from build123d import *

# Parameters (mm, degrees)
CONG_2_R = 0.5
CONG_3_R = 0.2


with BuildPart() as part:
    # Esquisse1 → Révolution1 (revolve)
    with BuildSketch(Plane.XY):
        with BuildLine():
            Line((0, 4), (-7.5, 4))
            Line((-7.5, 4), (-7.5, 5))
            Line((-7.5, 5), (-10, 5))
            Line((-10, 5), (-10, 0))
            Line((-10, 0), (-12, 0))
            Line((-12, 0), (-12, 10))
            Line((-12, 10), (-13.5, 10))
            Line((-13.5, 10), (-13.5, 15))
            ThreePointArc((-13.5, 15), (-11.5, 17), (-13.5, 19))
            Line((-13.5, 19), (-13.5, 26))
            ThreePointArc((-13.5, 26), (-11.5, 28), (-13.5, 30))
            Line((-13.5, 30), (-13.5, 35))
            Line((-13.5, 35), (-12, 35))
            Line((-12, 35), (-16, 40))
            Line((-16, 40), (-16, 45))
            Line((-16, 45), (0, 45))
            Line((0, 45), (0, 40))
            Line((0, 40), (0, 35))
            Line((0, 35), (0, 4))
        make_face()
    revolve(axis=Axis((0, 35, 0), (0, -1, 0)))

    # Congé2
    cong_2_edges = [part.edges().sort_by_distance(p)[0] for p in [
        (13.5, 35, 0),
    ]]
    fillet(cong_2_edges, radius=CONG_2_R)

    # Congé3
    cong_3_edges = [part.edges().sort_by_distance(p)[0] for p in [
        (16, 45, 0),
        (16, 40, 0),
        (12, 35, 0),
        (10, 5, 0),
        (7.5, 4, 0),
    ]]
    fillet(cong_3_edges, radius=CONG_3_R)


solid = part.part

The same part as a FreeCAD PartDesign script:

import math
import FreeCAD as App
import Part
import Sketcher
Q = App.Units.Quantity


def edges_at(feature, points):
    """Names of the edges that pass closest to the given points."""
    edges = feature.Shape.Edges
    near = lambda p: min(range(len(edges)), key=lambda i: edges[i].distToShape(Part.Vertex(*p))[0])
    return sorted({f"Edge{near(p) + 1}" for p in points})

doc = App.newDocument("Part")
body = doc.addObject("PartDesign::Body", "Body")

sketch1 = body.newObject("Sketcher::SketchObject", "Sketch")
sketch1.AttachmentSupport = (doc.getObject("XY_Plane"), [""])
sketch1.MapMode = "FlatFace"
sketch1.addGeometry(Part.LineSegment(App.Vector(-7.5, 4, 0), App.Vector(0, 4, 0)), False)
sketch1.addGeometry(Part.LineSegment(App.Vector(0, 4, 0), App.Vector(0, 45, 0)), False)
sketch1.addGeometry(Part.LineSegment(App.Vector(0, 45, 0), App.Vector(-16, 45, 0)), False)
sketch1.addGeometry(Part.LineSegment(App.Vector(-16, 45, 0), App.Vector(-16, 40, 0)), False)
sketch1.addGeometry(Part.LineSegment(App.Vector(-16, 40, 0), App.Vector(-12, 35, 0)), False)
sketch1.addGeometry(Part.LineSegment(App.Vector(-12, 35, 0), App.Vector(-13.5, 35, 0)), False)
sketch1.addGeometry(Part.LineSegment(App.Vector(-13.5, 35, 0), App.Vector(-13.5, 30, 0)), False)
sketch1.addGeometry(Part.ArcOfCircle(Part.Circle(App.Vector(-13.5, 28, 0), App.Vector(0, 0, 1), 2), math.radians(-90), math.radians(90)), False)
sketch1.addGeometry(Part.LineSegment(App.Vector(-13.5, 26, 0), App.Vector(-13.5, 19, 0)), False)
sketch1.addGeometry(Part.ArcOfCircle(Part.Circle(App.Vector(-13.5, 17, 0), App.Vector(0, 0, 1), 2), math.radians(-90), math.radians(90)), False)
sketch1.addGeometry(Part.LineSegment(App.Vector(-13.5, 15, 0), App.Vector(-13.5, 10, 0)), False)
sketch1.addGeometry(Part.LineSegment(App.Vector(-13.5, 10, 0), App.Vector(-12, 10, 0)), False)
sketch1.addGeometry(Part.LineSegment(App.Vector(-12, 10, 0), App.Vector(-12, 0, 0)), False)
sketch1.addGeometry(Part.LineSegment(App.Vector(-12, 0, 0), App.Vector(-10, 0, 0)), False)
sketch1.addGeometry(Part.LineSegment(App.Vector(-10, 0, 0), App.Vector(-10, 5, 0)), False)
sketch1.addGeometry(Part.LineSegment(App.Vector(-10, 5, 0), App.Vector(-7.5, 5, 0)), False)
sketch1.addGeometry(Part.LineSegment(App.Vector(-7.5, 5, 0), App.Vector(-7.5, 4, 0)), False)
sketch1.addConstraint(Sketcher.Constraint("Coincident", 0, 2, 1, 1))
sketch1.addConstraint(Sketcher.Constraint("Coincident", 1, 2, 2, 1))
sketch1.addConstraint(Sketcher.Constraint("Coincident", 2, 2, 3, 1))
sketch1.addConstraint(Sketcher.Constraint("Coincident", 3, 2, 4, 1))
sketch1.addConstraint(Sketcher.Constraint("Coincident", 4, 2, 5, 1))
sketch1.addConstraint(Sketcher.Constraint("Coincident", 5, 2, 6, 1))
sketch1.addConstraint(Sketcher.Constraint("Coincident", 6, 2, 7, 2))
sketch1.addConstraint(Sketcher.Constraint("Coincident", 7, 1, 8, 1))
sketch1.addConstraint(Sketcher.Constraint("Coincident", 8, 2, 9, 2))
sketch1.addConstraint(Sketcher.Constraint("Coincident", 9, 1, 10, 1))
sketch1.addConstraint(Sketcher.Constraint("Coincident", 10, 2, 11, 1))
sketch1.addConstraint(Sketcher.Constraint("Coincident", 11, 2, 12, 1))
sketch1.addConstraint(Sketcher.Constraint("Coincident", 12, 2, 13, 1))
sketch1.addConstraint(Sketcher.Constraint("Coincident", 13, 2, 14, 1))
sketch1.addConstraint(Sketcher.Constraint("Coincident", 14, 2, 15, 1))
sketch1.addConstraint(Sketcher.Constraint("Coincident", 15, 2, 16, 1))
sketch1.addConstraint(Sketcher.Constraint("Coincident", 16, 2, 0, 1))
sketch1.addConstraint(Sketcher.Constraint("Horizontal", 0))
sketch1.addConstraint(Sketcher.Constraint("Vertical", 1))
sketch1.addConstraint(Sketcher.Constraint("Horizontal", 2))
sketch1.addConstraint(Sketcher.Constraint("Vertical", 3))
sketch1.addConstraint(Sketcher.Constraint("Horizontal", 5))
sketch1.addConstraint(Sketcher.Constraint("Vertical", 6))
sketch1.addConstraint(Sketcher.Constraint("Vertical", 8))
sketch1.addConstraint(Sketcher.Constraint("Vertical", 10))
sketch1.addConstraint(Sketcher.Constraint("Horizontal", 11))
sketch1.addConstraint(Sketcher.Constraint("Vertical", 12))
sketch1.addConstraint(Sketcher.Constraint("Horizontal", 13))
sketch1.addConstraint(Sketcher.Constraint("Vertical", 14))
sketch1.addConstraint(Sketcher.Constraint("Horizontal", 15))
sketch1.addConstraint(Sketcher.Constraint("Vertical", 16))
sketch1.addConstraint(Sketcher.Constraint("Equal", 7, 9))
sketch1.addConstraint(Sketcher.Constraint("PointOnObject", 0, 2, -2))
sketch1.addConstraint(Sketcher.Constraint("PointOnObject", 12, 2, -1))
sketch1.addConstraint(Sketcher.Constraint("Vertical", 7, 3, 9, 3))
sketch1.addConstraint(Sketcher.Constraint("Vertical", 9, 3, 5, 2))
sketch1.addConstraint(Sketcher.Constraint("Vertical", 6, 2, 7, 1))
sketch1.addConstraint(Sketcher.Constraint("Vertical", 8, 2, 9, 1))
sketch1.addConstraint(Sketcher.Constraint("Vertical", 4, 2, 11, 2))
sketch1.addConstraint(Sketcher.Constraint("Equal", 3, 6))
sketch1.addConstraint(Sketcher.Constraint("Equal", 6, 10))
sketch1.addConstraint(Sketcher.Constraint("Equal", 10, 14))
sketch1.addConstraint(Sketcher.Constraint("Radius", 7, Q("2 mm")))
sketch1.addConstraint(Sketcher.Constraint("DistanceX", 2, 2, 2, 1, Q("16 mm")))
sketch1.addConstraint(Sketcher.Constraint("DistanceX", 13, 1, 13, 2, Q("2 mm")))
sketch1.addConstraint(Sketcher.Constraint("DistanceY", 1, 1, 1, 2, Q("41 mm")))
sketch1.addConstraint(Sketcher.Constraint("DistanceY", 3, 2, 3, 1, Q("5 mm")))
sketch1.addConstraint(Sketcher.Constraint("DistanceY", 8, 2, 8, 1, Q("7 mm")))
sketch1.addConstraint(Sketcher.Constraint("DistanceY", 12, 2, 12, 1, Q("10 mm")))
sketch1.addConstraint(Sketcher.Constraint("DistanceY", 16, 2, 16, 1, Q("1 mm")))
sketch1.addConstraint(Sketcher.Constraint("DistanceX", 0, 1, 0, 2, Q("7.5 mm")))
sketch1.addConstraint(Sketcher.Constraint("DistanceX", 5, 2, 5, 1, Q("1.5 mm")))
sketch1.addConstraint(Sketcher.Constraint("DistanceX", 15, 1, 15, 2, Q("2.5 mm")))
revolution = body.newObject("PartDesign::Revolution", "Revolution")
revolution.Profile = sketch1
revolution.ReferenceAxis = (sketch1, ["V_Axis"])
revolution.Angle = 360
doc.recompute()

fillet = body.newObject("PartDesign::Fillet", "Fillet")
fillet.Base = (revolution, edges_at(revolution, [(13.5, 35, 0)]))
fillet.Radius = 0.5
doc.recompute()

fillet2 = body.newObject("PartDesign::Fillet", "Fillet001")
fillet2.Base = (fillet, edges_at(fillet, [
    (16, 45, 0),
    (16, 40, 0),
    (12, 35, 0),
    (10, 5, 0),
    (7.5, 4, 0),
]))
fillet2.Radius = 0.2

doc.recompute()
